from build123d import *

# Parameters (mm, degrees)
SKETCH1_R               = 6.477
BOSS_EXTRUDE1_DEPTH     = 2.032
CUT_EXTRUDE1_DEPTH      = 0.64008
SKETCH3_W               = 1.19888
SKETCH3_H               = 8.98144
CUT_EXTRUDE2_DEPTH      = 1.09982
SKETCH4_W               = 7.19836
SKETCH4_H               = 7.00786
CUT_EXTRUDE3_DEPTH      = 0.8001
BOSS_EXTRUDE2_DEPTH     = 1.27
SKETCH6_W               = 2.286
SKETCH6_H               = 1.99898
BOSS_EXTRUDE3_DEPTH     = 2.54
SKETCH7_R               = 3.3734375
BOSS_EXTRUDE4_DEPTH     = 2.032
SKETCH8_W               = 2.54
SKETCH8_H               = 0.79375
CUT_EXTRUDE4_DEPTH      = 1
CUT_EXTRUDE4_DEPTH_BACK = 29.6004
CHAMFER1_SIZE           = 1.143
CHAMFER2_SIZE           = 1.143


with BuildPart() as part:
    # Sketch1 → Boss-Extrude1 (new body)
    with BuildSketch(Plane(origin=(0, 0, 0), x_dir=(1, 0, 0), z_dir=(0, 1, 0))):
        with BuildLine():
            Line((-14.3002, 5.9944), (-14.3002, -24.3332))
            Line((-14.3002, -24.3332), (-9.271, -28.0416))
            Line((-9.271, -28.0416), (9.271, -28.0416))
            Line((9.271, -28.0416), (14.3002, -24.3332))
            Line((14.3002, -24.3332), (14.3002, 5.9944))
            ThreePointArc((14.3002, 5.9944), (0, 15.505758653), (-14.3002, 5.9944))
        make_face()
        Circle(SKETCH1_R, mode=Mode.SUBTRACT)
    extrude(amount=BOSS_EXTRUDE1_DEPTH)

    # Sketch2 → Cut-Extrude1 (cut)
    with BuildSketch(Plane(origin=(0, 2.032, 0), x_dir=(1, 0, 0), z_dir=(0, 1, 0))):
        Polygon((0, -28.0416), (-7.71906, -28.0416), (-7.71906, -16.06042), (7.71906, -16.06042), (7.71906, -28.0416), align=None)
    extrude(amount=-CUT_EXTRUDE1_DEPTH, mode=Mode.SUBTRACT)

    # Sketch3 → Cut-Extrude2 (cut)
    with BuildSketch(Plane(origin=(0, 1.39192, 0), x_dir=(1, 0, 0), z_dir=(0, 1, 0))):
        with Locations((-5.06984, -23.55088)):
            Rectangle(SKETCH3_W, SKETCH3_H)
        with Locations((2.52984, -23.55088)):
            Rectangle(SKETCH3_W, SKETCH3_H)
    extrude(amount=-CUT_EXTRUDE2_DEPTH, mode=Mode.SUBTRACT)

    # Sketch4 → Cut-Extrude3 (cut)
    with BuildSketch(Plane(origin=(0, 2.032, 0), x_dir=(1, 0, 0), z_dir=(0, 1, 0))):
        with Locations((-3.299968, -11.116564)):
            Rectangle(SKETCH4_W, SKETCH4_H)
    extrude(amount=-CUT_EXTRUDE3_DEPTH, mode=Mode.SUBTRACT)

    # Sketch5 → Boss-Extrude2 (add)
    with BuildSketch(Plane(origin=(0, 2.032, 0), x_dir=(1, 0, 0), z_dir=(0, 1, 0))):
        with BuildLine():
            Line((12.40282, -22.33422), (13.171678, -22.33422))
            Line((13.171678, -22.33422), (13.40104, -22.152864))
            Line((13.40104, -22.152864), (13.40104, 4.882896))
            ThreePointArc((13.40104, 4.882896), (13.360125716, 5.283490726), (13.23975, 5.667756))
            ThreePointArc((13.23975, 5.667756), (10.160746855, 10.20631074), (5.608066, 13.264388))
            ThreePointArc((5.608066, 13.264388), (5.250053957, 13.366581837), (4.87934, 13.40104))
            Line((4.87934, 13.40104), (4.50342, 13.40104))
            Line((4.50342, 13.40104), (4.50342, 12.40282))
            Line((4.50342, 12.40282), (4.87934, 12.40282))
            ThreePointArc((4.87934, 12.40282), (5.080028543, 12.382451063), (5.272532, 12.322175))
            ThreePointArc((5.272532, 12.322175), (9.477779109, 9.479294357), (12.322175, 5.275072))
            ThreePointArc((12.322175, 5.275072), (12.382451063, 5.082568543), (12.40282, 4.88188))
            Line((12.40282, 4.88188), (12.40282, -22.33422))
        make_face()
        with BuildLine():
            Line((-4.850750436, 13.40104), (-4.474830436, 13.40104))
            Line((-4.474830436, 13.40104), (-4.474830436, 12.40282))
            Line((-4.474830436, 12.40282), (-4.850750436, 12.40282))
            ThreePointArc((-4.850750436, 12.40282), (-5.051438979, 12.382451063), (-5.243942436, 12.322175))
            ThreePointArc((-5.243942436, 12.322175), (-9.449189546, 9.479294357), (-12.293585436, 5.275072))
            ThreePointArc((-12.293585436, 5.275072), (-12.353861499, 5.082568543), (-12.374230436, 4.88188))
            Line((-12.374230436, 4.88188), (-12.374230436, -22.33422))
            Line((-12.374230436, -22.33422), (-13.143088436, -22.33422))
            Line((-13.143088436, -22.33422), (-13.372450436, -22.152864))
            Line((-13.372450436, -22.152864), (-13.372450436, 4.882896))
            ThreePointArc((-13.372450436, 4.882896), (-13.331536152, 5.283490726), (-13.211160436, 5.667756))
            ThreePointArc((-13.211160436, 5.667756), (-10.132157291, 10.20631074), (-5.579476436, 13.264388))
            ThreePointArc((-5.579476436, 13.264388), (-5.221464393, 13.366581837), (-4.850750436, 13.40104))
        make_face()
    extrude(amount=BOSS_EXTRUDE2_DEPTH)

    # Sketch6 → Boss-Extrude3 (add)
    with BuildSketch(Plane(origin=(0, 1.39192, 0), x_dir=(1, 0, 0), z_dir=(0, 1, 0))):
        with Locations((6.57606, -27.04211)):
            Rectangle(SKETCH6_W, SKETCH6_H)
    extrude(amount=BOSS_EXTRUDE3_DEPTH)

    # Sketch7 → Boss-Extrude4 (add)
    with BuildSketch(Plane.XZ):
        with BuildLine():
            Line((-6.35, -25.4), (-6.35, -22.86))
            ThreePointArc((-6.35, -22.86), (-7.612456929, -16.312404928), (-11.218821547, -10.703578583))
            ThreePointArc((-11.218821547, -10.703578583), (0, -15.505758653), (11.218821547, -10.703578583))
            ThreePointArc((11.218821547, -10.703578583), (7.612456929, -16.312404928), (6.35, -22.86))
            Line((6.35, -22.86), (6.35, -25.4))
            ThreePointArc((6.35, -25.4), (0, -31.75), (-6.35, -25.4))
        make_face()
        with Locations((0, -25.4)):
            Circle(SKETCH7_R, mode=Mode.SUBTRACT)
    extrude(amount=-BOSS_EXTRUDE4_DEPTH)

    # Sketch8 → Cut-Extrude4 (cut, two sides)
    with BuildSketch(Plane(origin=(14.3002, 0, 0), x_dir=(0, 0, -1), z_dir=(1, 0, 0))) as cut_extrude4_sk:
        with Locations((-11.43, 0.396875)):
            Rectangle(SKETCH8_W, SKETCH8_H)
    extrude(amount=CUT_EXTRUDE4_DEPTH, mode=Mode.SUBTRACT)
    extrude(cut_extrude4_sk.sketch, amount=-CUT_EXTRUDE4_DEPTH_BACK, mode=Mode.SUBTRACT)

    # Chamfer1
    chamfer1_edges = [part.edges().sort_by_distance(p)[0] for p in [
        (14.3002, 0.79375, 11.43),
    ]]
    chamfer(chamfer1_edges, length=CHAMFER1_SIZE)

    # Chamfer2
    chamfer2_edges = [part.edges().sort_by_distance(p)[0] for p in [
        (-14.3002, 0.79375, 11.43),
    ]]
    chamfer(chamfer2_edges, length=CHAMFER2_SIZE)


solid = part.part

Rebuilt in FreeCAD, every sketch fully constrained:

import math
import FreeCAD as App
import Part
import Sketcher
from FreeCAD import Vector
Q = App.Units.Quantity


def edges_at(feature, points):
    """Names of the edges that pass closest to the given points."""
    edges = feature.Shape.Edges
    near = lambda p: min(range(len(edges)), key=lambda i: edges[i].distToShape(Part.Vertex(*p))[0])
    return sorted({f"Edge{near(p) + 1}" for p in points})


def add_polygon(sketch, points):
    """Adds a closed chain of lines whose ends are joined by coincident constraints."""
    first, n = sketch.GeometryCount, len(points)
    for a, b in zip(points, points[1:] + points[:1]):
        sketch.addGeometry(Part.LineSegment(App.Vector(*a, 0), App.Vector(*b, 0)), False)
    for i in range(n):
        sketch.addConstraint(Sketcher.Constraint("Coincident", first + i, 2, first + (i + 1) % n, 1))

doc = App.newDocument("Part")
body = doc.addObject("PartDesign::Body", "Body")

# Sketch on XZ plane
sketch1 = body.newObject("Sketcher::SketchObject", "Sketch")
sketch1.AttachmentSupport = (doc.getObject("XZ_Plane"), [""])
sketch1.MapMode = "FlatFace"
sketch1.addGeometry([
    Part.LineSegment(Vector(-14, -6, 0), Vector(-14, 24, 0)),  # 0
    Part.LineSegment(Vector(-14, 24, 0), Vector(-9, 28, 0)),  # 1
    Part.LineSegment(Vector(-9, 28, 0), Vector(9, 28, 0)),  # 2
    Part.LineSegment(Vector(9, 28, 0), Vector(14, 24, 0)),  # 3
    Part.LineSegment(Vector(14, 24, 0), Vector(14, -6, 0)),  # 4
    Part.ArcOfCircle(Part.Circle(Vector(0, 0, 0), Vector(0, 0, 1), 16), math.radians(-157), math.radians(-23)),  # 5
    Part.Circle(Vector(0, 0, 0), Vector(0, 0, 1), 6),  # 6
], False)
sketch1.addConstraint([
    Sketcher.Constraint("Coincident", 0, 2, 1, 1),
    Sketcher.Constraint("Coincident", 1, 2, 2, 1),
    Sketcher.Constraint("Coincident", 2, 2, 3, 1),
    Sketcher.Constraint("Coincident", 3, 2, 4, 1),
    Sketcher.Constraint("Coincident", 4, 2, 5, 2),
    Sketcher.Constraint("Coincident", 5, 1, 0, 1),
    Sketcher.Constraint("Vertical", 0),
    Sketcher.Constraint("Horizontal", 2),
    Sketcher.Constraint("Vertical", 4),
    Sketcher.Constraint("Coincident", 5, 3, -1, 1),
    Sketcher.Constraint("Coincident", 6, 3, -1, 1),
    Sketcher.Constraint("Symmetric", 0, 2, 3, 2, -2),
    Sketcher.Constraint("Equal", 1, 3),
    Sketcher.Constraint("Diameter", 6, Q("0.51 in")),
    Sketcher.Constraint("DistanceX", 2, 1, 2, 2, Q("0.73 in")),
    Sketcher.Constraint("DistanceY", 0, 1, 0, 2, Q("1.194 in")),
    Sketcher.Constraint("DistanceY", 4, 2, 2, 2, Q("1.34 in")),
    Sketcher.Constraint("DistanceX", 0, 2, -1, 1, Q("0.563 in")),
    Sketcher.Constraint("DistanceY", -1, 1, 0, 2, Q("0.958 in")),
])
pad1 = body.newObject("PartDesign::Pad", "Pad")
pad1.Profile = sketch1
pad1.Length = Q("0.08 in")
pad1.Reversed = True

# Sketch on XZ plane
sketch2 = body.newObject("Sketcher::SketchObject", "Sketch001")
sketch2.AttachmentSupport = (doc.getObject("XZ_Plane"), [""])
sketch2.MapMode = "FlatFace"
sketch2.AttachmentOffset = App.Placement(Vector(0, 0, -0.08 * 25.4), App.Rotation())
add_polygon(sketch2, [(-8, 28), (8, 28), (8, 16), (-8, 16)])  # lines 0-3
sketch2.addConstraint([
    Sketcher.Constraint("Horizontal", 0),
    Sketcher.Constraint("Vertical", 1),
    Sketcher.Constraint("Horizontal", 2),
    Sketcher.Constraint("Vertical", 3),
    Sketcher.Constraint("DistanceX", 0, 1, 0, 2, Q("0.6078 in")),
    Sketcher.Constraint("DistanceY", 1, 2, 1, 1, Q("0.4717 in")),
    Sketcher.Constraint("DistanceY", -1, 1, 0, 2, Q("1.104 in")),
    Sketcher.Constraint("DistanceX", -1, 1, 0, 2, Q("0.3039 in")),
])
pocket1 = body.newObject("PartDesign::Pocket", "Pocket")
pocket1.Profile = sketch2
pocket1.Length = Q("0.0252 in")
pocket1.Reversed = True

# Sketch on XZ plane
sketch3 = body.newObject("Sketcher::SketchObject", "Sketch002")
sketch3.AttachmentSupport = (doc.getObject("XZ_Plane"), [""])
sketch3.MapMode = "FlatFace"
sketch3.AttachmentOffset = App.Placement(Vector(0, 0, -0.0548 * 25.4), App.Rotation())
add_polygon(sketch3, [(-5.7, 19.1), (-5.7, 28), (-4.5, 28), (-4.5, 19.1)])  # lines 0-3
add_polygon(sketch3, [(1.9, 19.1), (1.9, 28), (3.1, 28), (3.1, 19.1)])  # lines 4-7
sketch3.addConstraint([
    Sketcher.Constraint("Vertical", 0),
    Sketcher.Constraint("Horizontal", 1),
    Sketcher.Constraint("Vertical", 2),
    Sketcher.Constraint("Horizontal", 3),
    Sketcher.Constraint("Vertical", 4),
    Sketcher.Constraint("Horizontal", 5),
    Sketcher.Constraint("Vertical", 6),
    Sketcher.Constraint("Horizontal", 7),
    Sketcher.Constraint("Horizontal", 1, 2, 4, 2),
    Sketcher.Constraint("Horizontal", 3, 2, 6, 2),
    Sketcher.Constraint("Equal", 3, 5),
    Sketcher.Constraint("DistanceX", 1, 1, 1, 2, Q("0.0472 in")),
    Sketcher.Constraint("DistanceY", 0, 1, 0, 2, Q("0.3536 in")),
    Sketcher.Constraint("DistanceY", -1, 1, 0, 2, Q("1.104 in")),
    Sketcher.Constraint("DistanceX", 1, 2, -1, 1, Q("0.176 in")),
    Sketcher.Constraint("DistanceX", -1, 1, 4, 2, Q("0.076 in")),
])
pocket2 = body.newObject("PartDesign::Pocket", "Pocket001")
pocket2.Profile = sketch3
pocket2.Length = Q("0.0433 in")
pocket2.Reversed = True

# Sketch on XZ plane
sketch4 = body.newObject("Sketcher::SketchObject", "Sketch003")
sketch4.AttachmentSupport = (doc.getObject("XZ_Plane"), [""])
sketch4.MapMode = "FlatFace"
sketch4.AttachmentOffset = App.Placement(Vector(0, 0, -0.08 * 25.4), App.Rotation())
add_polygon(sketch4, [(-7, 8), (-7, 15), (0, 15), (0, 8)])  # lines 0-3
sketch4.addConstraint([
    Sketcher.Constraint("Vertical", 0),
    Sketcher.Constraint("Horizontal", 1),
    Sketcher.Constraint("Vertical", 2),
    Sketcher.Constraint("Horizontal", 3),
    Sketcher.Constraint("DistanceX", 1, 1, 1, 2, Q("0.2834 in")),
    Sketcher.Constraint("DistanceY", 0, 1, 0, 2, Q("0.2759 in")),
    Sketcher.Constraint("DistanceX", 0, 2, -1, 1, 6.899148),
    Sketcher.Constraint("DistanceY", -1, 1, 0, 2, 14.620494),
])
pocket3 = body.newObject("PartDesign::Pocket", "Pocket002")
pocket3.Profile = sketch4
pocket3.Length = Q("0.0315 in")
pocket3.Reversed = True

# Sketch on XZ plane
sketch5 = body.newObject("Sketcher::SketchObject", "Sketch004")
sketch5.AttachmentSupport = (doc.getObject("XZ_Plane"), [""])
sketch5.MapMode = "FlatFace"
sketch5.AttachmentOffset = App.Placement(Vector(0, 0, -0.08 * 25.4), App.Rotation())
sketch5.addGeometry([
    Part.LineSegment(Vector(12.4, 22.33, 0), Vector(13.17, 22.33, 0)),  # 0
    Part.LineSegment(Vector(13.17, 22.33, 0), Vector(13.4, 22.15, 0)),  # 1
    Part.LineSegment(Vector(13.4, 22.15, 0), Vector(13.4, -4.88, 0)),  # 2
    Part.ArcOfCircle(Part.Circle(Vector(11.4, -4.88, 0), Vector(0, 0, 1), 2), math.radians(-23), math.radians(0)),  # 3
    Part.ArcOfCircle(Part.Circle(Vector(0, 0, 0), Vector(0, 0, 1), 14.4), math.radians(-67), math.radians(-23)),  # 4
    Part.ArcOfCircle(Part.Circle(Vector(4.88, -11.39, 0), Vector(0, 0, 1), 2.01), math.radians(-90), math.radians(-69)),  # 5
    Part.LineSegment(Vector(4.88, -13.4, 0), Vector(4.5, -13.4, 0)),  # 6
    Part.LineSegment(Vector(4.5, -13.4, 0), Vector(4.5, -12.4, 0)),  # 7
    Part.LineSegment(Vector(4.5, -12.4, 0), Vector(4.88, -12.4, 0)),  # 8
    Part.ArcOfCircle(Part.Circle(Vector(4.88, -11.4, 0), Vector(0, 0, 1), 1), math.radians(-90), math.radians(-67)),  # 9
    Part.ArcOfCircle(Part.Circle(Vector(0.01, -0.01, 0), Vector(0, 0, 1), 13.39), math.radians(-67), math.radians(-23)),  # 10
    Part.ArcOfCircle(Part.Circle(Vector(11.4, -4.88, 0), Vector(0, 0, 1), 1), math.radians(-23), math.radians(0)),  # 11
    Part.LineSegment(Vector(12.4, -4.88, 0), Vector(12.4, 22.33, 0)),  # 12
    Part.LineSegment(Vector(-4.47, -13.4, 0), Vector(-4.85, -13.4, 0)),  # 13
    Part.ArcOfCircle(Part.Circle(Vector(-4.85, -11.39, 0), Vector(0, 0, 1), 2.01), math.radians(-111), math.radians(-90)),  # 14
    Part.ArcOfCircle(Part.Circle(Vector(0.03, 0, 0), Vector(0, 0, 1), 14.4), math.radians(-157), math.radians(-113)),  # 15
    Part.ArcOfCircle(Part.Circle(Vector(-11.37, -4.88, 0), Vector(0, 0, 1), 2), math.radians(-180), math.radians(-157)),  # 16
    Part.LineSegment(Vector(-13.37, -4.88, 0), Vector(-13.37, 22.15, 0)),  # 17
    Part.LineSegment(Vector(-13.37, 22.15, 0), Vector(-13.14, 22.33, 0)),  # 18
    Part.LineSegment(Vector(-13.14, 22.33, 0), Vector(-12.37, 22.33, 0)),  # 19
    Part.LineSegment(Vector(-12.37, 22.33, 0), Vector(-12.37, -4.88, 0)),  # 20
    Part.ArcOfCircle(Part.Circle(Vector(-11.38, -4.88, 0), Vector(0, 0, 1), 1), math.radians(-180), math.radians(-157)),  # 21
    Part.ArcOfCircle(Part.Circle(Vector(0.01, -0.01, 0), Vector(0, 0, 1), 13.39), math.radians(-157), math.radians(-113)),  # 22
    Part.ArcOfCircle(Part.Circle(Vector(-4.85, -11.4, 0), Vector(0, 0, 1), 1), math.radians(-113), math.radians(-90)),  # 23
    Part.LineSegment(Vector(-4.85, -12.4, 0), Vector(-4.47, -12.4, 0)),  # 24
    Part.LineSegment(Vector(-4.47, -12.4, 0), Vector(-4.47, -13.4, 0)),  # 25
], False)
sketch5.addConstraint([
    Sketcher.Constraint("Coincident", 0, 2, 1, 1),
    Sketcher.Constraint("Coincident", 1, 2, 2, 1),
    Sketcher.Constraint("Coincident", 2, 2, 3, 2),
    Sketcher.Constraint("Tangent", 3, 1, 4, 2),
    Sketcher.Constraint("Coincident", 4, 1, 5, 2),
    Sketcher.Constraint("Tangent", 5, 1, 6, 1),
    Sketcher.Constraint("Coincident", 6, 2, 7, 1),
    Sketcher.Constraint("Coincident", 7, 2, 8, 1),
    Sketcher.Constraint("Tangent", 8, 2, 9, 1),
    Sketcher.Constraint("Coincident", 9, 2, 10, 1),
    Sketcher.Constraint("Coincident", 10, 2, 11, 1),
    Sketcher.Constraint("Tangent", 11, 2, 12, 1),
    Sketcher.Constraint("Coincident", 12, 2, 0, 1),
    Sketcher.Constraint("Tangent", 13, 2, 14, 2),
    Sketcher.Constraint("Coincident", 14, 1, 15, 2),
    Sketcher.Constraint("Tangent", 15, 1, 16, 2),
    Sketcher.Constraint("Coincident", 16, 1, 17, 1),
    Sketcher.Constraint("Coincident", 17, 2, 18, 1),
    Sketcher.Constraint("Coincident", 18, 2, 19, 1),
    Sketcher.Constraint("Coincident", 19, 2, 20, 1),
    Sketcher.Constraint("Tangent", 20, 2, 21, 1),
    Sketcher.Constraint("Coincident", 21, 2, 22, 1),
    Sketcher.Constraint("Coincident", 22, 2, 23, 1),
    Sketcher.Constraint("Tangent", 23, 2, 24, 1),
    Sketcher.Constraint("Coincident", 24, 2, 25, 1),
    Sketcher.Constraint("Coincident", 25, 2, 13, 1),
    Sketcher.Constraint("Horizontal", 0),
    Sketcher.Constraint("Vertical", 2),
    Sketcher.Constraint("Horizontal", 6),
    Sketcher.Constraint("Vertical", 7),
    Sketcher.Constraint("Horizontal", 8),
    Sketcher.Constraint("Vertical", 12),
    Sketcher.Constraint("Horizontal", 13),
    Sketcher.Constraint("Vertical", 17),
    Sketcher.Constraint("Horizontal", 19),
    Sketcher.Constraint("Vertical", 20),
    Sketcher.Constraint("Horizontal", 24),
    Sketcher.Constraint("Vertical", 25),
    Sketcher.Constraint("Coincident", 22, 3, 10, 3),
    Sketcher.Constraint("Equal", 9, 11),
    Sketcher.Constraint("Equal", 5, 14),
    Sketcher.Constraint("Equal", 4, 15),
    Sketcher.Constraint("Equal", 3, 16),
    Sketcher.Constraint("Equal", 11, 21),
    Sketcher.Constraint("Equal", 10, 22),
    Sketcher.Constraint("Equal", 21, 23),
    Sketcher.Constraint("Horizontal", 5, 3, 14, 3),
    Sketcher.Constraint("Horizontal", 4, 3, 15, 3),
    Sketcher.Constraint("Horizontal", 3, 3, 16, 3),
    Sketcher.Constraint("Horizontal", 11, 3, 21, 3),
    Sketcher.Constraint("Horizontal", 9, 3, 23, 3),
    Sketcher.Constraint("Horizontal", 4, 1, 14, 1),
    Sketcher.Constraint("Horizontal", 2, 2, 16, 1),
    Sketcher.Constraint("Horizontal", 1, 2, 17, 2),
    Sketcher.Constraint("Horizontal", 12, 2, 18, 2),
    Sketcher.Constraint("Horizontal", 10, 2, 21, 2),
    Sketcher.Constraint("Horizontal", 9, 2, 22, 2),
    Sketcher.Constraint("Vertical", 5, 3, 9, 3),
    Sketcher.Constraint("Vertical", 14, 3, 23, 3),
    Sketcher.Constraint("Equal", 8, 13),
    Sketcher.Constraint("Equal", 0, 19),
    Sketcher.Constraint("Radius", 10, Q("0.527 in")),
    Sketcher.Constraint("Radius", 4, Q("0.5669 in")),
    Sketcher.Constraint("DistanceX", 6, 2, 6, 1, Q("0.0148 in")),
    Sketcher.Constraint("DistanceY", 2, 2, 2, 1, Q("1.0644 in")),
    Sketcher.Constraint("DistanceY", 7, 1, 7, 2, Q("0.0393 in")),
    Sketcher.Constraint("DistanceY", 12, 1, 12, 2, Q("1.0715 in")),
    Sketcher.Constraint("Radius", 5, 2.01137),
    Sketcher.Constraint("DistanceX", -1, 1, 5, 3, Q("0.1921 in")),
    Sketcher.Constraint("DistanceY", 11, 3, -1, 1, Q("0.1922 in")),
    Sketcher.Constraint("DistanceX", -1, 1, 1, 2, Q("0.5276 in")),
    Sketcher.Constraint("DistanceY", 5, 1, -1, 1, Q("0.5276 in")),
    Sketcher.Constraint("DistanceX", -1, 1, 11, 2, Q("0.4883 in")),
    Sketcher.Constraint("Radius", 3, 1.998844),
    Sketcher.Constraint("Radius", 9, 0.998844),
    Sketcher.Constraint("DistanceY", 3, 1, 2, 2, Q("0.0309 in")),
    Sketcher.Constraint("Distance", 1, 0.292399),
    Sketcher.Constraint("DistanceX", 4, 3, 3, 3, 11.399801),
    Sketcher.Constraint("DistanceY", 9, 2, 9, 3, 0.918199),
    Sketcher.Constraint("DistanceX", 11, 3, 10, 2, 0.918199),
    Sketcher.Constraint("DistanceX", 0, 1, 0, 2, 0.768858),
])
pad2 = body.newObject("PartDesign::Pad", "Pad001")
pad2.Profile = sketch5
pad2.Length = Q("0.05 in")
pad2.Reversed = True

# Sketch on XZ plane
sketch6 = body.newObject("Sketcher::SketchObject", "Sketch005")
sketch6.AttachmentSupport = (doc.getObject("XZ_Plane"), [""])
sketch6.MapMode = "FlatFace"
sketch6.AttachmentOffset = App.Placement(Vector(0, 0, -0.0548 * 25.4), App.Rotation())
add_polygon(sketch6, [(5.4, 26), (5.4, 28), (7.7, 28), (7.7, 26)])  # lines 0-3
sketch6.addConstraint([
    Sketcher.Constraint("Vertical", 0),
    Sketcher.Constraint("Horizontal", 1),
    Sketcher.Constraint("Vertical", 2),
    Sketcher.Constraint("Horizontal", 3),
    Sketcher.Constraint("DistanceX", 1, 1, 1, 2, Q("0.09 in")),
    Sketcher.Constraint("DistanceY", 0, 1, 0, 2, Q("0.0787 in")),
    Sketcher.Constraint("DistanceY", -1, 1, 0, 2, Q("1.104 in")),
    Sketcher.Constraint("DistanceX", -1, 1, 0, 2, Q("0.2139 in")),
])
pad3 = body.newObject("PartDesign::Pad", "Pad002")
pad3.Profile = sketch6
pad3.Length = Q("0.1 in")
pad3.Reversed = True

# Sketch on XZ plane
sketch7 = body.newObject("Sketcher::SketchObject", "Sketch006")
sketch7.AttachmentSupport = (doc.getObject("XZ_Plane"), [""])
sketch7.MapMode = "FlatFace"
sketch7.addGeometry([
    Part.LineSegment(Vector(-6.3, -22.9, 0), Vector(-6.3, -25.4, 0)),  # 0
    Part.ArcOfCircle(Part.Circle(Vector(0, -25.4, 0), Vector(0, 0, 1), 6.3), math.radians(180), math.radians(360)),  # 1
    Part.LineSegment(Vector(6.3, -25.4, 0), Vector(6.3, -22.9, 0)),  # 2
    Part.ArcOfCircle(Part.Circle(Vector(24, -22.9, 0), Vector(0, 0, 1), 17.6), math.radians(136), math.radians(180)),  # 3
    Part.ArcOfCircle(Part.Circle(Vector(0, 0, 0), Vector(0, 0, 1), 15.5), math.radians(-136), math.radians(-44)),  # 4
    Part.ArcOfCircle(Part.Circle(Vector(-24, -22.9, 0), Vector(0, 0, 1), 17.6), math.radians(0), math.radians(44)),  # 5
    Part.Circle(Vector(0, -25.4, 0), Vector(0, 0, 1), 3.4),  # 6
], False)
sketch7.addConstraint([
    Sketcher.Constraint("Tangent", 0, 2, 1, 1),
    Sketcher.Constraint("Tangent", 1, 2, 2, 1),
    Sketcher.Constraint("Tangent", 2, 2, 3, 2),
    Sketcher.Constraint("Tangent", 3, 1, 4, 2),
    Sketcher.Constraint("Tangent", 4, 1, 5, 2),
    Sketcher.Constraint("Tangent", 5, 1, 0, 1),
    Sketcher.Constraint("Vertical", 0),
    Sketcher.Constraint("Vertical", 2),
    Sketcher.Constraint("Coincident", 4, 3, -1, 1),
    Sketcher.Constraint("Coincident", 6, 3, 1, 3),
    Sketcher.Constraint("Equal", 3, 5),
    Sketcher.Constraint("PointOnObject", 1, 3, -2),
    Sketcher.Constraint("Radius", 1, Q("0.25 in")),
    Sketcher.Constraint("Diameter", 6, Q("0.265625 in")),
    Sketcher.Constraint("DistanceY", 0, 2, 0, 1, Q("0.1 in")),
    Sketcher.Constraint("DistanceY", 1, 3, -1, 1, Q("1 in")),
    Sketcher.Constraint("Radius", 4, 15.505759),
])
pad4 = body.newObject("PartDesign::Pad", "Pad003")
pad4.Profile = sketch7
pad4.Length = Q("0.08 in")
pad4.Reversed = True

# Sketch on YZ plane
sketch8 = body.newObject("Sketcher::SketchObject", "Sketch007")
sketch8.AttachmentSupport = (doc.getObject("YZ_Plane"), [""])
sketch8.MapMode = "FlatFace"
sketch8.AttachmentOffset = App.Placement(Vector(0, 0, 0.563 * 25.4), App.Rotation())
add_polygon(sketch8, [(0.8, 12.7), (0, 12.7), (0, 10.2), (0.8, 10.2)])  # lines 0-3
sketch8.addConstraint([
    Sketcher.Constraint("Horizontal", 0),
    Sketcher.Constraint("Vertical", 1),
    Sketcher.Constraint("Horizontal", 2),
    Sketcher.Constraint("Vertical", 3),
    Sketcher.Constraint("PointOnObject", 0, 2, -2),
    Sketcher.Constraint("DistanceY", 1, 2, 1, 1, Q("0.1 in")),
    Sketcher.Constraint("DistanceY", -1, 1, 0, 2, Q("0.5 in")),
    Sketcher.Constraint("DistanceX", 0, 2, 0, 1, Q("0.03125 in")),
])
pocket4 = body.newObject("PartDesign::Pocket", "Pocket003")
pocket4.Profile = sketch8
pocket4.Type = "ThroughAll"
pocket4.Midplane = True
doc.recompute()

chamfer = body.newObject("PartDesign::Chamfer", "Chamfer")
chamfer.Base = (pocket4, edges_at(pocket4, [(14.3, 0.794, 11.43)]))
chamfer.Size = Q("0.045 in")
doc.recompute()

chamfer2 = body.newObject("PartDesign::Chamfer", "Chamfer001")
chamfer2.Base = (chamfer, edges_at(chamfer, [(-14.3, 0.794, 11.43)]))
chamfer2.Size = Q("0.045 in")

doc.recompute()
